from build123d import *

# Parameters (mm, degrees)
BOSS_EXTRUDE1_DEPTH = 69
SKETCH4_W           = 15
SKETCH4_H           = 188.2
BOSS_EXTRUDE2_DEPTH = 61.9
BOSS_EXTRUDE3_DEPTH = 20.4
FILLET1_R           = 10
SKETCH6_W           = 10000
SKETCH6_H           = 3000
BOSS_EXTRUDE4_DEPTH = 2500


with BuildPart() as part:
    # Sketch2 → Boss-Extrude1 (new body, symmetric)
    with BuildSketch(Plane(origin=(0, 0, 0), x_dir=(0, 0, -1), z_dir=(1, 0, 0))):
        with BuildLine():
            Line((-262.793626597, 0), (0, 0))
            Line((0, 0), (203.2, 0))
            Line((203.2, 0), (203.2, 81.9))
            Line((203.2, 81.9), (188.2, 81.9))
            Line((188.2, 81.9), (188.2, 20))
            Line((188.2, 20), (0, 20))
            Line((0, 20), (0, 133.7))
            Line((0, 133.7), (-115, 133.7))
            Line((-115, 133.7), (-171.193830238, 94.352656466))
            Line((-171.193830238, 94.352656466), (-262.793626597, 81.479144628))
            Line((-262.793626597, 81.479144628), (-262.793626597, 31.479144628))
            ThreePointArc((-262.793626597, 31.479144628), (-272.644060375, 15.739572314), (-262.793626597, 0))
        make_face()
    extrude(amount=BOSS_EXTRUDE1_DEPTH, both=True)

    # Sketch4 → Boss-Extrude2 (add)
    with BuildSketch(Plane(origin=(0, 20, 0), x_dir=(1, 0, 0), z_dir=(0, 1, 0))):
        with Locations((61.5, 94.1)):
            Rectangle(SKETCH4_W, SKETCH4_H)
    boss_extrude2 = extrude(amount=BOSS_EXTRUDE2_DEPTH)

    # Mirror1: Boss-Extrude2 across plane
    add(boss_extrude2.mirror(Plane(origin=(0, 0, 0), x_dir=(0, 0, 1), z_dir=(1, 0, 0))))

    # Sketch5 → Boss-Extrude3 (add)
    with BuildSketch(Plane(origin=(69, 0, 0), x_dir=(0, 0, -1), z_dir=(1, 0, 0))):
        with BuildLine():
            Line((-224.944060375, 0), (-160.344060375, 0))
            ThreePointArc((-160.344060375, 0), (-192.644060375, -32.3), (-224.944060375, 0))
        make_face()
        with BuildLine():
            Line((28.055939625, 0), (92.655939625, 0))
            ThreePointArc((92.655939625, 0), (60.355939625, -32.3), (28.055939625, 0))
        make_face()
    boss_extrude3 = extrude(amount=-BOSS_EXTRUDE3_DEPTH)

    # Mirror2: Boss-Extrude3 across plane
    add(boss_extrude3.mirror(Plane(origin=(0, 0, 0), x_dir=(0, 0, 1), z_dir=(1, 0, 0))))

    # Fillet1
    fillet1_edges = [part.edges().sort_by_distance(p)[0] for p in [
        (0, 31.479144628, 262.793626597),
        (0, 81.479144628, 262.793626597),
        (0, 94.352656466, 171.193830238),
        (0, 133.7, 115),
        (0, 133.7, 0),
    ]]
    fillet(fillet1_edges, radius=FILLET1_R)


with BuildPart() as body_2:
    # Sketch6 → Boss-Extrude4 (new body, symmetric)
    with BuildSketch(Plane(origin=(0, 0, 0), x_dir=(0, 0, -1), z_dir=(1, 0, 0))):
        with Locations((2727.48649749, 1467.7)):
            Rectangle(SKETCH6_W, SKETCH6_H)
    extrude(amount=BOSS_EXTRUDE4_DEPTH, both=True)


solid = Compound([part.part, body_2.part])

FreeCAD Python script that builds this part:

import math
import FreeCAD as App
import Part
import Sketcher

V = App.Vector
Q = App.Units.Quantity


def edges_at(feature, points):
    """Names of the edges that pass closest to the given points."""
    edges = feature.Shape.Edges
    near = lambda p: min(range(len(edges)), key=lambda i: edges[i].distToShape(Part.Vertex(*p))[0])
    return sorted({f"Edge{near(p) + 1}" for p in points})


def add_polygon(sketch, points):
    """Adds a closed chain of lines whose ends are joined by coincident constraints."""
    first, n = sketch.GeometryCount, len(points)
    for a, b in zip(points, points[1:] + points[:1]):
        sketch.addGeometry(Part.LineSegment(App.Vector(*a, 0), App.Vector(*b, 0)), False)
    for i in range(n):
        sketch.addConstraint(Sketcher.Constraint("Coincident", first + i, 2, first + (i + 1) % n, 1))

doc = App.newDocument("Part")
params = doc.addObject("Spreadsheet::Sheet", "Params")
for row, (alias, value) in enumerate([
    ("sketch1_radius", "17.5 mm"),
    ("sketch1_width", "50 mm"),
    ("sketch1_height", "15 mm"),
    ("sketch1_height2", "115 mm"),
    ("sketch1_width2", "81.9 mm"),
    ("pad1_length", "138 mm"),
    ("sketch2_width", "15 mm"),
    ("sketch2_height", "188.2 mm"),
    ("pad2_length", "61.9 mm"),
    ("sketch3_radius", "32.3 mm"),
    ("pad3_length", "20.4 mm"),
    ("fillet_radius", "10 mm"),
    ("sketch4_width", "3000 mm"),
    ("sketch4_height", "10000 mm"),
    ("pad4_length", "5000 mm"),
], start=1):
    params.set(f"A{row}", alias)
    params.set(f"B{row}", "=" + value)
    params.setAlias(f"B{row}", alias)

body = doc.addObject("PartDesign::Body", "Body")

sketch1 = doc.addObject("Sketcher::SketchObject", "Sketch")
body.addObject(sketch1)
sketch1.AttachmentSupport = (doc.YZ_Plane, [""])
sketch1.MapMode = "FlatFace"
sketch1.addGeometry([
    Part.LineSegment(V(0, 262.793627, 0), V(0, -203.2, 0)),
    Part.LineSegment(V(0, -203.2, 0), V(81.9, -203.2, 0)),
    Part.LineSegment(V(81.9, -203.2, 0), V(81.9, -188.2, 0)),
    Part.LineSegment(V(81.9, -188.2, 0), V(20, -188.2, 0)),
    Part.LineSegment(V(20, -188.2, 0), V(20, 0, 0)),
    Part.LineSegment(V(20, 0, 0), V(133.7, 0, 0)),
    Part.LineSegment(V(133.7, 0, 0), V(133.7, 115, 0)),
    Part.LineSegment(V(133.7, 115, 0), V(94.352656, 171.19383, 0)),
    Part.LineSegment(V(94.352656, 171.19383, 0), V(81.479145, 262.793627, 0)),
    Part.LineSegment(V(81.479145, 262.793627, 0), V(31.479145, 262.793627, 0)),
    Part.ArcOfCircle(Part.Circle(V(15.739572, 255.14406, 0), V(0, 0, 1), 17.5), math.radians(25.920147), math.radians(154.079853)),
], False)
sketch1.addConstraint([
    Sketcher.Constraint("Coincident", 0, 2, 1, 1),
    Sketcher.Constraint("Coincident", 1, 2, 2, 1),
    Sketcher.Constraint("Coincident", 2, 2, 3, 1),
    Sketcher.Constraint("Coincident", 3, 2, 4, 1),
    Sketcher.Constraint("Coincident", 4, 2, 5, 1),
    Sketcher.Constraint("Coincident", 5, 2, 6, 1),
    Sketcher.Constraint("Coincident", 6, 2, 7, 1),
    Sketcher.Constraint("Coincident", 7, 2, 8, 1),
    Sketcher.Constraint("Coincident", 8, 2, 9, 1),
    Sketcher.Constraint("Coincident", 9, 2, 10, 1),
    Sketcher.Constraint("Coincident", 10, 2, 0, 1),
    Sketcher.Constraint("Vertical", 0),
    Sketcher.Constraint("Horizontal", 1),
    Sketcher.Constraint("Vertical", 2),
    Sketcher.Constraint("Horizontal", 3),
    Sketcher.Constraint("Vertical", 4),
    Sketcher.Constraint("Horizontal", 5),
    Sketcher.Constraint("Vertical", 6),
    Sketcher.Constraint("Horizontal", 9),
    Sketcher.Constraint("PointOnObject", 0, 2, -2),
    Sketcher.Constraint("PointOnObject", 4, 2, -1),
    Sketcher.Constraint("Horizontal", 9, 2, 10, 2),
    Sketcher.Constraint("Radius", 10, 17.5),
    Sketcher.Constraint("DistanceX", 9, 2, 9, 1, 50.0),
    Sketcher.Constraint("DistanceY", 2, 1, 2, 2, 15.0),
    Sketcher.Constraint("DistanceY", 6, 1, 6, 2, 115.0),
    Sketcher.Constraint("Angle", 7, Q("125 deg")),
    Sketcher.Constraint("Angle", 8, Q("98 deg")),
    Sketcher.Constraint("DistanceX", 1, 1, 1, 2, 81.9),
    Sketcher.Constraint("DistanceX", 3, 2, 3, 1, 61.9),
    Sketcher.Constraint("DistanceX", 5, 1, 5, 2, 113.7),
    Sketcher.Constraint("DistanceY", 4, 1, 4, 2, 188.2),
    Sketcher.Constraint("Distance", 7, 68.6),
    Sketcher.Constraint("Distance", 8, 92.5),
])
sketch1.setExpression("Constraints[22]", "Params.sketch1_radius")
sketch1.setExpression("Constraints[23]", "Params.sketch1_width")
sketch1.setExpression("Constraints[24]", "Params.sketch1_height")
sketch1.setExpression("Constraints[25]", "Params.sketch1_height2")
sketch1.setExpression("Constraints[28]", "Params.sketch1_width2")
pad1 = doc.addObject("PartDesign::Pad", "Pad")
body.addObject(pad1)
pad1.Profile = sketch1
pad1.setExpression("Length", "Params.pad1_length")
pad1.Midplane = True

sketch2 = doc.addObject("Sketcher::SketchObject", "Sketch001")
body.addObject(sketch2)
sketch2.AttachmentSupport = (doc.XZ_Plane, [""])
sketch2.MapMode = "FlatFace"
sketch2.AttachmentOffset = App.Placement(V(0, 0, -20), App.Rotation())
add_polygon(sketch2, [(54, -188.2), (54, 0), (69, 0), (69, -188.2)])
sketch2.addConstraint([
    Sketcher.Constraint("Vertical", 0),
    Sketcher.Constraint("Horizontal", 1),
    Sketcher.Constraint("Vertical", 2),
    Sketcher.Constraint("Horizontal", 3),
    Sketcher.Constraint("PointOnObject", 0, 2, -1),
    Sketcher.Constraint("DistanceX", 1, 1, 1, 2, 15.0),
    Sketcher.Constraint("DistanceY", 0, 1, 0, 2, 188.2),
    Sketcher.Constraint("DistanceX", -1, 1, 0, 2, 54.0),
])
sketch2.setExpression("Constraints[9]", "Params.sketch2_width")
sketch2.setExpression("Constraints[10]", "Params.sketch2_height")
pad2 = doc.addObject("PartDesign::Pad", "Pad001")
body.addObject(pad2)
pad2.Profile = sketch2
pad2.setExpression("Length", "Params.pad2_length")
pad2.Reversed = True
doc.recompute()

mirrored = doc.addObject("PartDesign::Mirrored", "Mirrored")
body.addObject(mirrored)
mirrored.Originals = [pad2]
mirrored.MirrorPlane = (doc.YZ_Plane, [""])
body.Tip = mirrored

sketch3 = doc.addObject("Sketcher::SketchObject", "Sketch002")
body.addObject(sketch3)
sketch3.AttachmentSupport = (doc.YZ_Plane, [""])
sketch3.MapMode = "FlatFace"
sketch3.AttachmentOffset = App.Placement(V(0, 0, 69), App.Rotation())
sketch3.addGeometry([
    Part.LineSegment(V(0, 160.34406, 0), V(0, 224.94406, 0)),
    Part.ArcOfCircle(Part.Circle(V(0, 192.64406, 0), V(0, 0, 1), 32.3), math.radians(90), math.radians(270)),
    Part.LineSegment(V(0, -92.65594, 0), V(0, -28.05594, 0)),
    Part.ArcOfCircle(Part.Circle(V(0, -60.35594, 0), V(0, 0, 1), 32.3), math.radians(90), math.radians(270)),
], False)
sketch3.addConstraint([
    Sketcher.Constraint("Coincident", 0, 1, 1, 2),
    Sketcher.Constraint("Coincident", 1, 1, 0, 2),
    Sketcher.Constraint("Coincident", 2, 1, 3, 2),
    Sketcher.Constraint("Coincident", 3, 1, 2, 2),
    Sketcher.Constraint("Vertical", 0),
    Sketcher.Constraint("Vertical", 2),
    Sketcher.Constraint("Equal", 1, 3),
    Sketcher.Constraint("PointOnObject", 1, 3, -2),
    Sketcher.Constraint("PointOnObject", 3, 3, -2),
    Sketcher.Constraint("PointOnObject", 0, 1, -2),
    Sketcher.Constraint("PointOnObject", 2, 1, -2),
    Sketcher.Constraint("Radius", 1, 32.3),
    Sketcher.Constraint("DistanceY", 3, 3, 1, 3, 253.0),
    Sketcher.Constraint("DistanceY", -1, 1, 1, 3, 192.64406),
])
sketch3.setExpression("Constraints[11]", "Params.sketch3_radius")
pad3 = doc.addObject("PartDesign::Pad", "Pad002")
body.addObject(pad3)
pad3.Profile = sketch3
pad3.setExpression("Length", "Params.pad3_length")
pad3.Reversed = True
doc.recompute()

mirrored2 = doc.addObject("PartDesign::Mirrored", "Mirrored001")
body.addObject(mirrored2)
mirrored2.Originals = [pad3]
mirrored2.MirrorPlane = (doc.YZ_Plane, [""])
body.Tip = mirrored2
doc.recompute()

fillet = doc.addObject("PartDesign::Fillet", "Fillet")
body.addObject(fillet)
fillet.Base = (mirrored2, edges_at(mirrored2, [
    (0, 31.479, 262.794),
    (0, 81.479, 262.794),
    (0, 94.353, 171.194),
    (0, 133.7, 115),
    (0, 133.7, 0),
]))
fillet.setExpression("Radius", "Params.fillet_radius")
body2 = doc.addObject("PartDesign::Body", "Body001")

sketch4 = doc.addObject("Sketcher::SketchObject", "Sketch003")
body2.addObject(sketch4)
sketch4.AttachmentSupport = (doc.getObject("YZ_Plane001"), [""])
sketch4.MapMode = "FlatFace"
add_polygon(sketch4, [(2967.7, 2272.513503), (-32.3, 2272.513503), (-32.3, -7727.486497), (2967.7, -7727.486497)])
sketch4.addConstraint([
    Sketcher.Constraint("Horizontal", 0),
    Sketcher.Constraint("Vertical", 1),
    Sketcher.Constraint("Horizontal", 2),
    Sketcher.Constraint("Vertical", 3),
    Sketcher.Constraint("DistanceX", 0, 2, 0, 1, 3000.0),
    Sketcher.Constraint("DistanceY", 1, 2, 1, 1, 10000.0),
    Sketcher.Constraint("DistanceX", 0, 2, -1, 1, 32.3),
    Sketcher.Constraint("DistanceY", -1, 1, 0, 2, 2272.513503),
])
sketch4.setExpression("Constraints[8]", "Params.sketch4_width")
sketch4.setExpression("Constraints[9]", "Params.sketch4_height")
pad4 = doc.addObject("PartDesign::Pad", "Pad003")
body2.addObject(pad4)
pad4.Profile = sketch4
pad4.setExpression("Length", "Params.pad4_length")
pad4.Midplane = True

doc.recompute()
